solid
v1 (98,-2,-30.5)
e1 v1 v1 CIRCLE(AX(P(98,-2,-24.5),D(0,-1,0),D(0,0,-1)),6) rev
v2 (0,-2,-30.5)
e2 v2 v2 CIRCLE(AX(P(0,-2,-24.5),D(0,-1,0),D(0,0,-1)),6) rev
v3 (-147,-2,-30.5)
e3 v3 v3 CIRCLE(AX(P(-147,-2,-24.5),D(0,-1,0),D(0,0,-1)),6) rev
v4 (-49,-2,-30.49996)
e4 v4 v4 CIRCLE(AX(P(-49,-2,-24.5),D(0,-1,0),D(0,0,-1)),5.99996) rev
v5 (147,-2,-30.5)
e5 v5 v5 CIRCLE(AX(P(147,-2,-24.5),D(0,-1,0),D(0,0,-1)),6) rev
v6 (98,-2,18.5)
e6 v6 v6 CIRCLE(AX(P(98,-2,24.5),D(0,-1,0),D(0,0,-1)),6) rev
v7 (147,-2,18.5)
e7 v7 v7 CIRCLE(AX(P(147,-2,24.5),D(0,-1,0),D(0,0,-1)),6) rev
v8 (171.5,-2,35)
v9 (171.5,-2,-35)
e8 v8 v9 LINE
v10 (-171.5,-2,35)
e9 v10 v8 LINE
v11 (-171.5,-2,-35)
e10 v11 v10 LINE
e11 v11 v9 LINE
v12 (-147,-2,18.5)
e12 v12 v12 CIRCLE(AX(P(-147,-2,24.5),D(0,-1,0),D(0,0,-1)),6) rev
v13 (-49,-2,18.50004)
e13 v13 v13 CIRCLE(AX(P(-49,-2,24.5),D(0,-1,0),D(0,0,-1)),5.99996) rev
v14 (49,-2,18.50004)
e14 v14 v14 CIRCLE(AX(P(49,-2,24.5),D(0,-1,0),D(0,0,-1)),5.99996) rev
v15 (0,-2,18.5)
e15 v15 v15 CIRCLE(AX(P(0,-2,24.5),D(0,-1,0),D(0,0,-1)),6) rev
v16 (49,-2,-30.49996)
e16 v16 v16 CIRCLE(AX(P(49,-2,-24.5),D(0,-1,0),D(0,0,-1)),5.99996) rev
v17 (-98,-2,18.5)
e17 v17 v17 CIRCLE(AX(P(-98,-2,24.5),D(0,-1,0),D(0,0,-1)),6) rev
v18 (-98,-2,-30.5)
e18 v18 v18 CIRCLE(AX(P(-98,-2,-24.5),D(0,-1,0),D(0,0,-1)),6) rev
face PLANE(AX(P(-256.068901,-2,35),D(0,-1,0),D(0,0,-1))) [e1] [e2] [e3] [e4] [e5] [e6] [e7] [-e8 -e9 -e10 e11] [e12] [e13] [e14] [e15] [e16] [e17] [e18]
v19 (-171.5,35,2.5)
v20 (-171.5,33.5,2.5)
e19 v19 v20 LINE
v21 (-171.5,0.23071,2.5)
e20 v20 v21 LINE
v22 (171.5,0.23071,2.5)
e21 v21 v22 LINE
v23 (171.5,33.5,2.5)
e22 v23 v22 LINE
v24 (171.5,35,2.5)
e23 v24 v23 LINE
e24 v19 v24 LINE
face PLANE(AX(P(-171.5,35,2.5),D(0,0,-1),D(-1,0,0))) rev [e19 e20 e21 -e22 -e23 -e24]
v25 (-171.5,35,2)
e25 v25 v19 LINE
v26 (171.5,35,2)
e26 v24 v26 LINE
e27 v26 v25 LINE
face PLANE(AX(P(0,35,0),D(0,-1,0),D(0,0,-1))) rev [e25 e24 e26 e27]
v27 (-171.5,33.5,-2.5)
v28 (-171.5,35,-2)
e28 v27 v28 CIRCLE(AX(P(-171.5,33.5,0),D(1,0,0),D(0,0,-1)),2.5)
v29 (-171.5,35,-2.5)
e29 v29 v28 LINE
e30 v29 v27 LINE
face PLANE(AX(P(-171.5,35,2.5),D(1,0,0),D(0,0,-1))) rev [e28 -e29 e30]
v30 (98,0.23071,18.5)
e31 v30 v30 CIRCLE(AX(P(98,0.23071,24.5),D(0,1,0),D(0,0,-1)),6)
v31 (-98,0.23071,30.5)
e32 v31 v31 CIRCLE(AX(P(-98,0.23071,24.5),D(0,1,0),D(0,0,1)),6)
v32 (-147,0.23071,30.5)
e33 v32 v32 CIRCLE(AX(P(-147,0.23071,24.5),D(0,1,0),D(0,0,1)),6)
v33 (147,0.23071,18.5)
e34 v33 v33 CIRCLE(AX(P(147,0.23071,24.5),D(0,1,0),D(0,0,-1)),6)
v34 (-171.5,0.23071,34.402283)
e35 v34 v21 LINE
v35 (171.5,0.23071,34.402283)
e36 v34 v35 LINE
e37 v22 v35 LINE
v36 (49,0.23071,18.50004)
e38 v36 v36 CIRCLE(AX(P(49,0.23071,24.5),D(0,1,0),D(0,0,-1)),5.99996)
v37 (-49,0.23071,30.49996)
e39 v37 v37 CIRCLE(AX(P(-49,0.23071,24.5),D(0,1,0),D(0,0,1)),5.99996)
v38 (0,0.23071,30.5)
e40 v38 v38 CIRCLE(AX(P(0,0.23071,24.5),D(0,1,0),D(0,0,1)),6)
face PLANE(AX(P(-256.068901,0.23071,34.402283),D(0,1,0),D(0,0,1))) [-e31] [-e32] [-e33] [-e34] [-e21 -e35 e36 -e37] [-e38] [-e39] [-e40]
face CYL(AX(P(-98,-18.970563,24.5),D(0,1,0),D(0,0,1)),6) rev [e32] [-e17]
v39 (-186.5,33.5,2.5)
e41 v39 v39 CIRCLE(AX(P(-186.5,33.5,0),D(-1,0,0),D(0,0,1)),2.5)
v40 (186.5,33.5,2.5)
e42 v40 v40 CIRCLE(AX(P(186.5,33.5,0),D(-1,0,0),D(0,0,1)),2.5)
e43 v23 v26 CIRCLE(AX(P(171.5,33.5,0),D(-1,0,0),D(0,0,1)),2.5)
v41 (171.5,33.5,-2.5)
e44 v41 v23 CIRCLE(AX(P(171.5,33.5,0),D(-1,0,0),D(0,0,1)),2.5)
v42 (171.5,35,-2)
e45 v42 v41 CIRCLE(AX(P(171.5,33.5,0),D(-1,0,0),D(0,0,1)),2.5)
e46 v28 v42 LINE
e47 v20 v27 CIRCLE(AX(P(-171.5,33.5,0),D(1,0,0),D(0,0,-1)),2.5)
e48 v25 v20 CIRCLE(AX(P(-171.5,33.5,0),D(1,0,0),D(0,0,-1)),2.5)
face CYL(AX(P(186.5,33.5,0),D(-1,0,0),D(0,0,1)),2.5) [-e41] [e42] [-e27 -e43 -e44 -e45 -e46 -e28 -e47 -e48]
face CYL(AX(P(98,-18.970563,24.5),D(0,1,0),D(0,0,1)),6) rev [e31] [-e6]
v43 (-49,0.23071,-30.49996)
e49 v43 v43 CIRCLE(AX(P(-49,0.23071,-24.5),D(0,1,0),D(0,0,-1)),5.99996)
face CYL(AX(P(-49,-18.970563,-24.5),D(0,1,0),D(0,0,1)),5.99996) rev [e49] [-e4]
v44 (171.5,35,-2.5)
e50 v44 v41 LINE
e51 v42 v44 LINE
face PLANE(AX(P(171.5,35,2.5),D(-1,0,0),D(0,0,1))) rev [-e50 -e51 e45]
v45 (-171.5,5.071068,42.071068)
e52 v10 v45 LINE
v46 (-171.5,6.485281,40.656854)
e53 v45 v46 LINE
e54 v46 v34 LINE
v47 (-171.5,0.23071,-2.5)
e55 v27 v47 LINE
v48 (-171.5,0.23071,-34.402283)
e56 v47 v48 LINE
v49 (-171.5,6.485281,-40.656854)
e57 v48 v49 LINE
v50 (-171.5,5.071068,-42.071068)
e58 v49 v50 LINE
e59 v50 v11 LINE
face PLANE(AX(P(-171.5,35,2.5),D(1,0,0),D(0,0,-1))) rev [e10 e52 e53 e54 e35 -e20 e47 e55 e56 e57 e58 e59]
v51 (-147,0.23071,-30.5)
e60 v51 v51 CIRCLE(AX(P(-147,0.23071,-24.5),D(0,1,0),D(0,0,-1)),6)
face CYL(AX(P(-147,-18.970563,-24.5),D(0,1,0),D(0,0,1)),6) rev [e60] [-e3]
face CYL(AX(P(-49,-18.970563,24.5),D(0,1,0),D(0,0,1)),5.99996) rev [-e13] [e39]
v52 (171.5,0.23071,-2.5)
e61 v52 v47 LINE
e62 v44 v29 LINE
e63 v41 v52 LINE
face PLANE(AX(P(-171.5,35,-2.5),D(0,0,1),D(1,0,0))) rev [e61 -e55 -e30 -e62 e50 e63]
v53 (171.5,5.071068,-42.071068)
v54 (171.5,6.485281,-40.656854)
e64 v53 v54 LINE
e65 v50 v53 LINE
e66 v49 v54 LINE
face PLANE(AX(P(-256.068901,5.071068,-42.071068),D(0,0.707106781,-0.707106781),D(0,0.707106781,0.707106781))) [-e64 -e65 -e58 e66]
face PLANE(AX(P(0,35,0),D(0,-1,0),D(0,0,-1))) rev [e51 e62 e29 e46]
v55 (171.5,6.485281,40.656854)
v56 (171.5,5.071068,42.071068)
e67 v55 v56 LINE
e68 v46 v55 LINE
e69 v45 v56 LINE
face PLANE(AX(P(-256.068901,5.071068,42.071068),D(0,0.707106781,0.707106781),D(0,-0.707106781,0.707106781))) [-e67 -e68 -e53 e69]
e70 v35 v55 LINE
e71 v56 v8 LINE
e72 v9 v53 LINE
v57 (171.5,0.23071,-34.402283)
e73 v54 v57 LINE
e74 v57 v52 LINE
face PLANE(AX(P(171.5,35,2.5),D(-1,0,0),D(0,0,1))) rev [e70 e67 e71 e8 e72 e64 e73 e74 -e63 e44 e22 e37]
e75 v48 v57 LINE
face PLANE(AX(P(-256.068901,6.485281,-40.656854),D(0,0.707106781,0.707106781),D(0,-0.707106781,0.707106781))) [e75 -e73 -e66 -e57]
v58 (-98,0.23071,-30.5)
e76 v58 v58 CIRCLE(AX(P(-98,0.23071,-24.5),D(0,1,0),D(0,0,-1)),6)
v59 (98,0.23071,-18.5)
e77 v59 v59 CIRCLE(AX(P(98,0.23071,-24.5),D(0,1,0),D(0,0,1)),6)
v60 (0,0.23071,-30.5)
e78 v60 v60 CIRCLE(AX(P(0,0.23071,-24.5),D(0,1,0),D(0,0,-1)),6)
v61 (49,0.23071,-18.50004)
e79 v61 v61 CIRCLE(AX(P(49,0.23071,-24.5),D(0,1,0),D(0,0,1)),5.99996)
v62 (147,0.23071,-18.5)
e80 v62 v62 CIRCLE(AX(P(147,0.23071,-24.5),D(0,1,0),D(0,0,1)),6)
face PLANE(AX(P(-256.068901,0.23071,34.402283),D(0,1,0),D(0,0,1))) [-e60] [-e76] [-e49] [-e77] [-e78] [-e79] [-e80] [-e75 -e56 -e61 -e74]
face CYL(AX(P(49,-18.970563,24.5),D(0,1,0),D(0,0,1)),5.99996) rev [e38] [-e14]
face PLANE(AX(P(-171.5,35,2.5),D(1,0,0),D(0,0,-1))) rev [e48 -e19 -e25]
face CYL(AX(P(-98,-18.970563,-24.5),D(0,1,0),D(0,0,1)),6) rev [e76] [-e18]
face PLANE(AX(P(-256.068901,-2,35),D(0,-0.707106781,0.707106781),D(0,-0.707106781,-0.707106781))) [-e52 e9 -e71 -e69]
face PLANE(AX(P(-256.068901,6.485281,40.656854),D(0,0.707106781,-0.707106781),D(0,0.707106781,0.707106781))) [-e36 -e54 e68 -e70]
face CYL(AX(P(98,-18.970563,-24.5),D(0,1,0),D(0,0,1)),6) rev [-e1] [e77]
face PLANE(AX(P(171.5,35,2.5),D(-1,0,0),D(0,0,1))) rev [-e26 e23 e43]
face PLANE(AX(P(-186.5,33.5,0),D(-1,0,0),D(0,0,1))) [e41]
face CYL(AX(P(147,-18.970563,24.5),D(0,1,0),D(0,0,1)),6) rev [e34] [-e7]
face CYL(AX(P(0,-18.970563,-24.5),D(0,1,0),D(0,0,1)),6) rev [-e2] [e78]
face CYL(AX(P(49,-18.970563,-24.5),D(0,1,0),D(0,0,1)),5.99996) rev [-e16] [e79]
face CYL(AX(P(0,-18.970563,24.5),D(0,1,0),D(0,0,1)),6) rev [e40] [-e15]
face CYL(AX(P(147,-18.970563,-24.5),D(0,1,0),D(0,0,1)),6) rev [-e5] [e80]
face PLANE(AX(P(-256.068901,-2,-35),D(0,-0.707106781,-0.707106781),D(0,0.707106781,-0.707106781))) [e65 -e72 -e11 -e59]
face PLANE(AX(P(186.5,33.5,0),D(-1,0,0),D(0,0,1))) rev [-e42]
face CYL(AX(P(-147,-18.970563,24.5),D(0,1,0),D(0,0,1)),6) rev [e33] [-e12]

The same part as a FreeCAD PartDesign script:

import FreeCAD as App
import Part
import Sketcher

V = App.Vector
Q = App.Units.Quantity

doc = App.newDocument("Part")
params = doc.addObject("Spreadsheet::Sheet", "Params")
for row, (alias, value) in enumerate([
    ("sketch1_width", "343 mm"),
    ("sketch1_height", "5 mm"),
    ("pad1_length", "35 mm"),
    ("sketch2_diameter", "5 mm"),
    ("pad2_length", "15 mm"),
    ("pad2_length2", "358 mm"),
    ("sketch3_height", "70 mm"),
    ("sketch3_length", "10 mm"),
    ("sketch3_length2", "2 mm"),
    ("pad3_length", "343 mm"),
    ("sketch4_diameter", "12 mm"),
    ("pocket1_length", "2.23071 mm"),
], start=1):
    params.set(f"A{row}", alias)
    params.set(f"B{row}", "=" + value)
    params.setAlias(f"B{row}", alias)

body = doc.addObject("PartDesign::Body", "Body")

# Sketch on XZ plane
sketch1 = doc.addObject("Sketcher::SketchObject", "Sketch")
body.addObject(sketch1)
sketch1.AttachmentSupport = (doc.XZ_Plane, [""])
sketch1.MapMode = "FlatFace"
sketch1.addGeometry(Part.LineSegment(V(-172, -2, 0), V(-172, 2, 0)), False)
sketch1.addGeometry(Part.LineSegment(V(-172, 2, 0), V(172, 2, 0)), False)
sketch1.addGeometry(Part.LineSegment(V(172, 2, 0), V(172, -2, 0)), False)
sketch1.addGeometry(Part.LineSegment(V(172, -2, 0), V(-172, -2, 0)), False)
sketch1.addConstraint(Sketcher.Constraint("Coincident", 0, 2, 1, 1))
sketch1.addConstraint(Sketcher.Constraint("Coincident", 1, 2, 2, 1))
sketch1.addConstraint(Sketcher.Constraint("Coincident", 2, 2, 3, 1))
sketch1.addConstraint(Sketcher.Constraint("Coincident", 3, 2, 0, 1))
sketch1.addConstraint(Sketcher.Constraint("Vertical", 0))
sketch1.addConstraint(Sketcher.Constraint("Horizontal", 1))
sketch1.addConstraint(Sketcher.Constraint("Vertical", 2))
sketch1.addConstraint(Sketcher.Constraint("Horizontal", 3))
sketch1.addConstraint(Sketcher.Constraint("Symmetric", 0, 2, 2, 2, -1, 1))
sketch1.addConstraint(Sketcher.Constraint("DistanceX", 1, 1, 1, 2, Q("343 mm")))
sketch1.addConstraint(Sketcher.Constraint("DistanceY", 0, 1, 0, 2, Q("5 mm")))
sketch1.setExpression("Constraints[9]", "Params.sketch1_width")
sketch1.setExpression("Constraints[10]", "Params.sketch1_height")
pad1 = doc.addObject("PartDesign::Pad", "Pad")
body.addObject(pad1)
pad1.Profile = sketch1
pad1.setExpression("Length", "Params.pad1_length")
pad1.Reversed = True

# Sketch on YZ plane
sketch2 = doc.addObject("Sketcher::SketchObject", "Sketch001")
body.addObject(sketch2)
sketch2.AttachmentSupport = (doc.YZ_Plane, [""])
sketch2.MapMode = "FlatFace"
sketch2.AttachmentOffset = App.Placement(V(0, 0, -171.5), App.Rotation())
sketch2.addGeometry(Part.Circle(V(33.5, 0, 0), V(0, 0, 1), 2.5), False)
sketch2.addConstraint(Sketcher.Constraint("PointOnObject", 0, 3, -1))
sketch2.addConstraint(Sketcher.Constraint("Diameter", 0, Q("5 mm")))
sketch2.addConstraint(Sketcher.Constraint("DistanceX", -1, 1, 0, 3, Q("33.5 mm")))
sketch2.setExpression("Constraints[1]", "Params.sketch2_diameter")
pad2 = doc.addObject("PartDesign::Pad", "Pad001")
body.addObject(pad2)
pad2.Profile = sketch2
pad2.Type = "TwoLengths"
pad2.setExpression("Length", "Params.pad2_length")
pad2.setExpression("Length2", "Params.pad2_length2")
pad2.Reversed = True

# Sketch on YZ plane
sketch3 = doc.addObject("Sketcher::SketchObject", "Sketch002")
body.addObject(sketch3)
sketch3.AttachmentSupport = (doc.YZ_Plane, [""])
sketch3.MapMode = "FlatFace"
sketch3.AttachmentOffset = App.Placement(V(0, 0, 171.5), App.Rotation())
sketch3.addGeometry(Part.LineSegment(V(-2, -35, 0), V(5.1, -42.1, 0)), False)
sketch3.addGeometry(Part.LineSegment(V(5.1, -42.1, 0), V(6.5, -40.7, 0)), False)
sketch3.addGeometry(Part.LineSegment(V(6.5, -40.7, 0), V(0.2, -34.4, 0)), False)
sketch3.addGeometry(Part.LineSegment(V(0.2, -34.4, 0), V(0.2, 34.4, 0)), False)
sketch3.addGeometry(Part.LineSegment(V(0.2, 34.4, 0), V(6.5, 40.7, 0)), False)
sketch3.addGeometry(Part.LineSegment(V(6.5, 40.7, 0), V(5.1, 42.1, 0)), False)
sketch3.addGeometry(Part.LineSegment(V(5.1, 42.1, 0), V(-2, 35, 0)), False)
sketch3.addGeometry(Part.LineSegment(V(-2, 35, 0), V(-2, -35, 0)), False)
sketch3.addConstraint(Sketcher.Constraint("Coincident", 0, 2, 1, 1))
sketch3.addConstraint(Sketcher.Constraint("Coincident", 1, 2, 2, 1))
sketch3.addConstraint(Sketcher.Constraint("Coincident", 2, 2, 3, 1))
sketch3.addConstraint(Sketcher.Constraint("Coincident", 3, 2, 4, 1))
sketch3.addConstraint(Sketcher.Constraint("Coincident", 4, 2, 5, 1))
sketch3.addConstraint(Sketcher.Constraint("Coincident", 5, 2, 6, 1))
sketch3.addConstraint(Sketcher.Constraint("Coincident", 6, 2, 7, 1))
sketch3.addConstraint(Sketcher.Constraint("Coincident", 7, 2, 0, 1))
sketch3.addConstraint(Sketcher.Constraint("Vertical", 3))
sketch3.addConstraint(Sketcher.Constraint("Vertical", 7))
sketch3.addConstraint(Sketcher.Constraint("Symmetric", 1, 2, 4, 2, -1))
sketch3.addConstraint(Sketcher.Constraint("Symmetric", 0, 2, 5, 2, -1))
sketch3.addConstraint(Sketcher.Constraint("Perpendicular", 0, 1))
sketch3.addConstraint(Sketcher.Constraint("Perpendicular", 1, 2))
sketch3.addConstraint(Sketcher.Constraint("Perpendicular", 2, 4))
sketch3.addConstraint(Sketcher.Constraint("Perpendicular", 4, 5))
sketch3.addConstraint(Sketcher.Constraint("Perpendicular", 5, 6))
sketch3.addConstraint(Sketcher.Constraint("DistanceY", 7, 2, 7, 1, Q("70 mm")))
sketch3.addConstraint(Sketcher.Constraint("Distance", 0, Q("10 mm")))
sketch3.addConstraint(Sketcher.Constraint("Distance", 1, Q("2 mm")))
sketch3.addConstraint(Sketcher.Constraint("DistanceX", 6, 2, -1, 1, Q("2 mm")))
sketch3.addConstraint(Sketcher.Constraint("Distance", 2, Q("8.845299 mm")))
sketch3.setExpression("Constraints[17]", "Params.sketch3_height")
sketch3.setExpression("Constraints[18]", "Params.sketch3_length")
sketch3.setExpression("Constraints[19]", "Params.sketch3_length2")
pad3 = doc.addObject("PartDesign::Pad", "Pad002")
body.addObject(pad3)
pad3.Profile = sketch3
pad3.setExpression("Length", "Params.pad3_length")
pad3.Reversed = True

# Sketch on XZ plane
sketch4 = doc.addObject("Sketcher::SketchObject", "Sketch003")
body.addObject(sketch4)
sketch4.AttachmentSupport = (doc.XZ_Plane, [""])
sketch4.MapMode = "FlatFace"
sketch4.AttachmentOffset = App.Placement(V(0, 0, -0.23071), App.Rotation())
sketch4.addGeometry(Part.Circle(V(0, 24, 0), V(0, 0, 1), 6), False)
sketch4.addGeometry(Part.Circle(V(-49, 24, 0), V(0, 0, 1), 6), False)
sketch4.addGeometry(Part.Circle(V(-98, 24, 0), V(0, 0, 1), 6), False)
sketch4.addGeometry(Part.Circle(V(-147, 24, 0), V(0, 0, 1), 6), False)
sketch4.addGeometry(Part.Circle(V(147, 24, 0), V(0, 0, 1), 6), False)
sketch4.addGeometry(Part.Circle(V(98, 24, 0), V(0, 0, 1), 6), False)
sketch4.addGeometry(Part.Circle(V(49, 24, 0), V(0, 0, 1), 6), False)
sketch4.addGeometry(Part.Circle(V(98, -24, 0), V(0, 0, 1), 6), False)
sketch4.addGeometry(Part.Circle(V(147, -24, 0), V(0, 0, 1), 6), False)
sketch4.addGeometry(Part.Circle(V(49, -24, 0), V(0, 0, 1), 6), False)
sketch4.addGeometry(Part.Circle(V(0, -24, 0), V(0, 0, 1), 6), False)
sketch4.addGeometry(Part.Circle(V(-147, -24, 0), V(0, 0, 1), 6), False)
sketch4.addGeometry(Part.Circle(V(-98, -24, 0), V(0, 0, 1), 6), False)
sketch4.addGeometry(Part.Circle(V(-49, -24, 0), V(0, 0, 1), 6), False)
sketch4.addConstraint(Sketcher.Constraint("Equal", 0, 2))
sketch4.addConstraint(Sketcher.Constraint("Equal", 2, 3))
sketch4.addConstraint(Sketcher.Constraint("Equal", 3, 4))
sketch4.addConstraint(Sketcher.Constraint("Equal", 4, 5))
sketch4.addConstraint(Sketcher.Constraint("Equal", 1, 6))
sketch4.addConstraint(Sketcher.Constraint("Equal", 5, 7))
sketch4.addConstraint(Sketcher.Constraint("Equal", 7, 8))
sketch4.addConstraint(Sketcher.Constraint("Equal", 6, 9))
sketch4.addConstraint(Sketcher.Constraint("Equal", 8, 10))
sketch4.addConstraint(Sketcher.Constraint("Equal", 10, 11))
sketch4.addConstraint(Sketcher.Constraint("Equal", 11, 12))
sketch4.addConstraint(Sketcher.Constraint("Equal", 9, 13))
sketch4.addConstraint(Sketcher.Constraint("Symmetric", 2, 3, 7, 3, -1, 1))
sketch4.addConstraint(Sketcher.Constraint("Symmetric", 3, 3, 8, 3, -1, 1))
sketch4.addConstraint(Sketcher.Constraint("Symmetric", 1, 3, 9, 3, -1, 1))
sketch4.addConstraint(Sketcher.Constraint("Symmetric", 0, 3, 10, 3, -1, 1))
sketch4.addConstraint(Sketcher.Constraint("Symmetric", 4, 3, 11, 3, -1, 1))
sketch4.addConstraint(Sketcher.Constraint("Symmetric", 5, 3, 12, 3, -1, 1))
sketch4.addConstraint(Sketcher.Constraint("Symmetric", 6, 3, 13, 3, -1, 1))
sketch4.addConstraint(Sketcher.Constraint("Symmetric", 3, 3, 4, 3, -2))
sketch4.addConstraint(Sketcher.Constraint("Symmetric", 2, 3, 5, 3, -2))
sketch4.addConstraint(Sketcher.Constraint("Symmetric", 1, 3, 6, 3, -2))
sketch4.addConstraint(Sketcher.Constraint("PointOnObject", 0, 3, -2))
sketch4.addConstraint(Sketcher.Constraint("Horizontal", 0, 3, 1, 3))
sketch4.addConstraint(Sketcher.Constraint("Horizontal", 1, 3, 2, 3))
sketch4.addConstraint(Sketcher.Constraint("Horizontal", 2, 3, 3, 3))
sketch4.addConstraint(Sketcher.Constraint("Diameter", 0, Q("12 mm")))
sketch4.addConstraint(Sketcher.Constraint("DistanceX", 1, 3, -1, 1, Q("49 mm")))
sketch4.addConstraint(Sketcher.Constraint("DistanceX", 2, 3, -1, 1, Q("98 mm")))
sketch4.addConstraint(Sketcher.Constraint("DistanceX", 3, 3, -1, 1, Q("147 mm")))
sketch4.addConstraint(Sketcher.Constraint("DistanceY", 7, 3, 5, 3, Q("49 mm")))
sketch4.addConstraint(Sketcher.Constraint("Diameter", 1, Q("11.999921 mm")))
sketch4.setExpression("Constraints[26]", "Params.sketch4_diameter")
pocket1 = doc.addObject("PartDesign::Pocket", "Pocket")
body.addObject(pocket1)
pocket1.Profile = sketch4
pocket1.setExpression("Length", "Params.pocket1_length")
pocket1.Reversed = True

doc.recompute()
